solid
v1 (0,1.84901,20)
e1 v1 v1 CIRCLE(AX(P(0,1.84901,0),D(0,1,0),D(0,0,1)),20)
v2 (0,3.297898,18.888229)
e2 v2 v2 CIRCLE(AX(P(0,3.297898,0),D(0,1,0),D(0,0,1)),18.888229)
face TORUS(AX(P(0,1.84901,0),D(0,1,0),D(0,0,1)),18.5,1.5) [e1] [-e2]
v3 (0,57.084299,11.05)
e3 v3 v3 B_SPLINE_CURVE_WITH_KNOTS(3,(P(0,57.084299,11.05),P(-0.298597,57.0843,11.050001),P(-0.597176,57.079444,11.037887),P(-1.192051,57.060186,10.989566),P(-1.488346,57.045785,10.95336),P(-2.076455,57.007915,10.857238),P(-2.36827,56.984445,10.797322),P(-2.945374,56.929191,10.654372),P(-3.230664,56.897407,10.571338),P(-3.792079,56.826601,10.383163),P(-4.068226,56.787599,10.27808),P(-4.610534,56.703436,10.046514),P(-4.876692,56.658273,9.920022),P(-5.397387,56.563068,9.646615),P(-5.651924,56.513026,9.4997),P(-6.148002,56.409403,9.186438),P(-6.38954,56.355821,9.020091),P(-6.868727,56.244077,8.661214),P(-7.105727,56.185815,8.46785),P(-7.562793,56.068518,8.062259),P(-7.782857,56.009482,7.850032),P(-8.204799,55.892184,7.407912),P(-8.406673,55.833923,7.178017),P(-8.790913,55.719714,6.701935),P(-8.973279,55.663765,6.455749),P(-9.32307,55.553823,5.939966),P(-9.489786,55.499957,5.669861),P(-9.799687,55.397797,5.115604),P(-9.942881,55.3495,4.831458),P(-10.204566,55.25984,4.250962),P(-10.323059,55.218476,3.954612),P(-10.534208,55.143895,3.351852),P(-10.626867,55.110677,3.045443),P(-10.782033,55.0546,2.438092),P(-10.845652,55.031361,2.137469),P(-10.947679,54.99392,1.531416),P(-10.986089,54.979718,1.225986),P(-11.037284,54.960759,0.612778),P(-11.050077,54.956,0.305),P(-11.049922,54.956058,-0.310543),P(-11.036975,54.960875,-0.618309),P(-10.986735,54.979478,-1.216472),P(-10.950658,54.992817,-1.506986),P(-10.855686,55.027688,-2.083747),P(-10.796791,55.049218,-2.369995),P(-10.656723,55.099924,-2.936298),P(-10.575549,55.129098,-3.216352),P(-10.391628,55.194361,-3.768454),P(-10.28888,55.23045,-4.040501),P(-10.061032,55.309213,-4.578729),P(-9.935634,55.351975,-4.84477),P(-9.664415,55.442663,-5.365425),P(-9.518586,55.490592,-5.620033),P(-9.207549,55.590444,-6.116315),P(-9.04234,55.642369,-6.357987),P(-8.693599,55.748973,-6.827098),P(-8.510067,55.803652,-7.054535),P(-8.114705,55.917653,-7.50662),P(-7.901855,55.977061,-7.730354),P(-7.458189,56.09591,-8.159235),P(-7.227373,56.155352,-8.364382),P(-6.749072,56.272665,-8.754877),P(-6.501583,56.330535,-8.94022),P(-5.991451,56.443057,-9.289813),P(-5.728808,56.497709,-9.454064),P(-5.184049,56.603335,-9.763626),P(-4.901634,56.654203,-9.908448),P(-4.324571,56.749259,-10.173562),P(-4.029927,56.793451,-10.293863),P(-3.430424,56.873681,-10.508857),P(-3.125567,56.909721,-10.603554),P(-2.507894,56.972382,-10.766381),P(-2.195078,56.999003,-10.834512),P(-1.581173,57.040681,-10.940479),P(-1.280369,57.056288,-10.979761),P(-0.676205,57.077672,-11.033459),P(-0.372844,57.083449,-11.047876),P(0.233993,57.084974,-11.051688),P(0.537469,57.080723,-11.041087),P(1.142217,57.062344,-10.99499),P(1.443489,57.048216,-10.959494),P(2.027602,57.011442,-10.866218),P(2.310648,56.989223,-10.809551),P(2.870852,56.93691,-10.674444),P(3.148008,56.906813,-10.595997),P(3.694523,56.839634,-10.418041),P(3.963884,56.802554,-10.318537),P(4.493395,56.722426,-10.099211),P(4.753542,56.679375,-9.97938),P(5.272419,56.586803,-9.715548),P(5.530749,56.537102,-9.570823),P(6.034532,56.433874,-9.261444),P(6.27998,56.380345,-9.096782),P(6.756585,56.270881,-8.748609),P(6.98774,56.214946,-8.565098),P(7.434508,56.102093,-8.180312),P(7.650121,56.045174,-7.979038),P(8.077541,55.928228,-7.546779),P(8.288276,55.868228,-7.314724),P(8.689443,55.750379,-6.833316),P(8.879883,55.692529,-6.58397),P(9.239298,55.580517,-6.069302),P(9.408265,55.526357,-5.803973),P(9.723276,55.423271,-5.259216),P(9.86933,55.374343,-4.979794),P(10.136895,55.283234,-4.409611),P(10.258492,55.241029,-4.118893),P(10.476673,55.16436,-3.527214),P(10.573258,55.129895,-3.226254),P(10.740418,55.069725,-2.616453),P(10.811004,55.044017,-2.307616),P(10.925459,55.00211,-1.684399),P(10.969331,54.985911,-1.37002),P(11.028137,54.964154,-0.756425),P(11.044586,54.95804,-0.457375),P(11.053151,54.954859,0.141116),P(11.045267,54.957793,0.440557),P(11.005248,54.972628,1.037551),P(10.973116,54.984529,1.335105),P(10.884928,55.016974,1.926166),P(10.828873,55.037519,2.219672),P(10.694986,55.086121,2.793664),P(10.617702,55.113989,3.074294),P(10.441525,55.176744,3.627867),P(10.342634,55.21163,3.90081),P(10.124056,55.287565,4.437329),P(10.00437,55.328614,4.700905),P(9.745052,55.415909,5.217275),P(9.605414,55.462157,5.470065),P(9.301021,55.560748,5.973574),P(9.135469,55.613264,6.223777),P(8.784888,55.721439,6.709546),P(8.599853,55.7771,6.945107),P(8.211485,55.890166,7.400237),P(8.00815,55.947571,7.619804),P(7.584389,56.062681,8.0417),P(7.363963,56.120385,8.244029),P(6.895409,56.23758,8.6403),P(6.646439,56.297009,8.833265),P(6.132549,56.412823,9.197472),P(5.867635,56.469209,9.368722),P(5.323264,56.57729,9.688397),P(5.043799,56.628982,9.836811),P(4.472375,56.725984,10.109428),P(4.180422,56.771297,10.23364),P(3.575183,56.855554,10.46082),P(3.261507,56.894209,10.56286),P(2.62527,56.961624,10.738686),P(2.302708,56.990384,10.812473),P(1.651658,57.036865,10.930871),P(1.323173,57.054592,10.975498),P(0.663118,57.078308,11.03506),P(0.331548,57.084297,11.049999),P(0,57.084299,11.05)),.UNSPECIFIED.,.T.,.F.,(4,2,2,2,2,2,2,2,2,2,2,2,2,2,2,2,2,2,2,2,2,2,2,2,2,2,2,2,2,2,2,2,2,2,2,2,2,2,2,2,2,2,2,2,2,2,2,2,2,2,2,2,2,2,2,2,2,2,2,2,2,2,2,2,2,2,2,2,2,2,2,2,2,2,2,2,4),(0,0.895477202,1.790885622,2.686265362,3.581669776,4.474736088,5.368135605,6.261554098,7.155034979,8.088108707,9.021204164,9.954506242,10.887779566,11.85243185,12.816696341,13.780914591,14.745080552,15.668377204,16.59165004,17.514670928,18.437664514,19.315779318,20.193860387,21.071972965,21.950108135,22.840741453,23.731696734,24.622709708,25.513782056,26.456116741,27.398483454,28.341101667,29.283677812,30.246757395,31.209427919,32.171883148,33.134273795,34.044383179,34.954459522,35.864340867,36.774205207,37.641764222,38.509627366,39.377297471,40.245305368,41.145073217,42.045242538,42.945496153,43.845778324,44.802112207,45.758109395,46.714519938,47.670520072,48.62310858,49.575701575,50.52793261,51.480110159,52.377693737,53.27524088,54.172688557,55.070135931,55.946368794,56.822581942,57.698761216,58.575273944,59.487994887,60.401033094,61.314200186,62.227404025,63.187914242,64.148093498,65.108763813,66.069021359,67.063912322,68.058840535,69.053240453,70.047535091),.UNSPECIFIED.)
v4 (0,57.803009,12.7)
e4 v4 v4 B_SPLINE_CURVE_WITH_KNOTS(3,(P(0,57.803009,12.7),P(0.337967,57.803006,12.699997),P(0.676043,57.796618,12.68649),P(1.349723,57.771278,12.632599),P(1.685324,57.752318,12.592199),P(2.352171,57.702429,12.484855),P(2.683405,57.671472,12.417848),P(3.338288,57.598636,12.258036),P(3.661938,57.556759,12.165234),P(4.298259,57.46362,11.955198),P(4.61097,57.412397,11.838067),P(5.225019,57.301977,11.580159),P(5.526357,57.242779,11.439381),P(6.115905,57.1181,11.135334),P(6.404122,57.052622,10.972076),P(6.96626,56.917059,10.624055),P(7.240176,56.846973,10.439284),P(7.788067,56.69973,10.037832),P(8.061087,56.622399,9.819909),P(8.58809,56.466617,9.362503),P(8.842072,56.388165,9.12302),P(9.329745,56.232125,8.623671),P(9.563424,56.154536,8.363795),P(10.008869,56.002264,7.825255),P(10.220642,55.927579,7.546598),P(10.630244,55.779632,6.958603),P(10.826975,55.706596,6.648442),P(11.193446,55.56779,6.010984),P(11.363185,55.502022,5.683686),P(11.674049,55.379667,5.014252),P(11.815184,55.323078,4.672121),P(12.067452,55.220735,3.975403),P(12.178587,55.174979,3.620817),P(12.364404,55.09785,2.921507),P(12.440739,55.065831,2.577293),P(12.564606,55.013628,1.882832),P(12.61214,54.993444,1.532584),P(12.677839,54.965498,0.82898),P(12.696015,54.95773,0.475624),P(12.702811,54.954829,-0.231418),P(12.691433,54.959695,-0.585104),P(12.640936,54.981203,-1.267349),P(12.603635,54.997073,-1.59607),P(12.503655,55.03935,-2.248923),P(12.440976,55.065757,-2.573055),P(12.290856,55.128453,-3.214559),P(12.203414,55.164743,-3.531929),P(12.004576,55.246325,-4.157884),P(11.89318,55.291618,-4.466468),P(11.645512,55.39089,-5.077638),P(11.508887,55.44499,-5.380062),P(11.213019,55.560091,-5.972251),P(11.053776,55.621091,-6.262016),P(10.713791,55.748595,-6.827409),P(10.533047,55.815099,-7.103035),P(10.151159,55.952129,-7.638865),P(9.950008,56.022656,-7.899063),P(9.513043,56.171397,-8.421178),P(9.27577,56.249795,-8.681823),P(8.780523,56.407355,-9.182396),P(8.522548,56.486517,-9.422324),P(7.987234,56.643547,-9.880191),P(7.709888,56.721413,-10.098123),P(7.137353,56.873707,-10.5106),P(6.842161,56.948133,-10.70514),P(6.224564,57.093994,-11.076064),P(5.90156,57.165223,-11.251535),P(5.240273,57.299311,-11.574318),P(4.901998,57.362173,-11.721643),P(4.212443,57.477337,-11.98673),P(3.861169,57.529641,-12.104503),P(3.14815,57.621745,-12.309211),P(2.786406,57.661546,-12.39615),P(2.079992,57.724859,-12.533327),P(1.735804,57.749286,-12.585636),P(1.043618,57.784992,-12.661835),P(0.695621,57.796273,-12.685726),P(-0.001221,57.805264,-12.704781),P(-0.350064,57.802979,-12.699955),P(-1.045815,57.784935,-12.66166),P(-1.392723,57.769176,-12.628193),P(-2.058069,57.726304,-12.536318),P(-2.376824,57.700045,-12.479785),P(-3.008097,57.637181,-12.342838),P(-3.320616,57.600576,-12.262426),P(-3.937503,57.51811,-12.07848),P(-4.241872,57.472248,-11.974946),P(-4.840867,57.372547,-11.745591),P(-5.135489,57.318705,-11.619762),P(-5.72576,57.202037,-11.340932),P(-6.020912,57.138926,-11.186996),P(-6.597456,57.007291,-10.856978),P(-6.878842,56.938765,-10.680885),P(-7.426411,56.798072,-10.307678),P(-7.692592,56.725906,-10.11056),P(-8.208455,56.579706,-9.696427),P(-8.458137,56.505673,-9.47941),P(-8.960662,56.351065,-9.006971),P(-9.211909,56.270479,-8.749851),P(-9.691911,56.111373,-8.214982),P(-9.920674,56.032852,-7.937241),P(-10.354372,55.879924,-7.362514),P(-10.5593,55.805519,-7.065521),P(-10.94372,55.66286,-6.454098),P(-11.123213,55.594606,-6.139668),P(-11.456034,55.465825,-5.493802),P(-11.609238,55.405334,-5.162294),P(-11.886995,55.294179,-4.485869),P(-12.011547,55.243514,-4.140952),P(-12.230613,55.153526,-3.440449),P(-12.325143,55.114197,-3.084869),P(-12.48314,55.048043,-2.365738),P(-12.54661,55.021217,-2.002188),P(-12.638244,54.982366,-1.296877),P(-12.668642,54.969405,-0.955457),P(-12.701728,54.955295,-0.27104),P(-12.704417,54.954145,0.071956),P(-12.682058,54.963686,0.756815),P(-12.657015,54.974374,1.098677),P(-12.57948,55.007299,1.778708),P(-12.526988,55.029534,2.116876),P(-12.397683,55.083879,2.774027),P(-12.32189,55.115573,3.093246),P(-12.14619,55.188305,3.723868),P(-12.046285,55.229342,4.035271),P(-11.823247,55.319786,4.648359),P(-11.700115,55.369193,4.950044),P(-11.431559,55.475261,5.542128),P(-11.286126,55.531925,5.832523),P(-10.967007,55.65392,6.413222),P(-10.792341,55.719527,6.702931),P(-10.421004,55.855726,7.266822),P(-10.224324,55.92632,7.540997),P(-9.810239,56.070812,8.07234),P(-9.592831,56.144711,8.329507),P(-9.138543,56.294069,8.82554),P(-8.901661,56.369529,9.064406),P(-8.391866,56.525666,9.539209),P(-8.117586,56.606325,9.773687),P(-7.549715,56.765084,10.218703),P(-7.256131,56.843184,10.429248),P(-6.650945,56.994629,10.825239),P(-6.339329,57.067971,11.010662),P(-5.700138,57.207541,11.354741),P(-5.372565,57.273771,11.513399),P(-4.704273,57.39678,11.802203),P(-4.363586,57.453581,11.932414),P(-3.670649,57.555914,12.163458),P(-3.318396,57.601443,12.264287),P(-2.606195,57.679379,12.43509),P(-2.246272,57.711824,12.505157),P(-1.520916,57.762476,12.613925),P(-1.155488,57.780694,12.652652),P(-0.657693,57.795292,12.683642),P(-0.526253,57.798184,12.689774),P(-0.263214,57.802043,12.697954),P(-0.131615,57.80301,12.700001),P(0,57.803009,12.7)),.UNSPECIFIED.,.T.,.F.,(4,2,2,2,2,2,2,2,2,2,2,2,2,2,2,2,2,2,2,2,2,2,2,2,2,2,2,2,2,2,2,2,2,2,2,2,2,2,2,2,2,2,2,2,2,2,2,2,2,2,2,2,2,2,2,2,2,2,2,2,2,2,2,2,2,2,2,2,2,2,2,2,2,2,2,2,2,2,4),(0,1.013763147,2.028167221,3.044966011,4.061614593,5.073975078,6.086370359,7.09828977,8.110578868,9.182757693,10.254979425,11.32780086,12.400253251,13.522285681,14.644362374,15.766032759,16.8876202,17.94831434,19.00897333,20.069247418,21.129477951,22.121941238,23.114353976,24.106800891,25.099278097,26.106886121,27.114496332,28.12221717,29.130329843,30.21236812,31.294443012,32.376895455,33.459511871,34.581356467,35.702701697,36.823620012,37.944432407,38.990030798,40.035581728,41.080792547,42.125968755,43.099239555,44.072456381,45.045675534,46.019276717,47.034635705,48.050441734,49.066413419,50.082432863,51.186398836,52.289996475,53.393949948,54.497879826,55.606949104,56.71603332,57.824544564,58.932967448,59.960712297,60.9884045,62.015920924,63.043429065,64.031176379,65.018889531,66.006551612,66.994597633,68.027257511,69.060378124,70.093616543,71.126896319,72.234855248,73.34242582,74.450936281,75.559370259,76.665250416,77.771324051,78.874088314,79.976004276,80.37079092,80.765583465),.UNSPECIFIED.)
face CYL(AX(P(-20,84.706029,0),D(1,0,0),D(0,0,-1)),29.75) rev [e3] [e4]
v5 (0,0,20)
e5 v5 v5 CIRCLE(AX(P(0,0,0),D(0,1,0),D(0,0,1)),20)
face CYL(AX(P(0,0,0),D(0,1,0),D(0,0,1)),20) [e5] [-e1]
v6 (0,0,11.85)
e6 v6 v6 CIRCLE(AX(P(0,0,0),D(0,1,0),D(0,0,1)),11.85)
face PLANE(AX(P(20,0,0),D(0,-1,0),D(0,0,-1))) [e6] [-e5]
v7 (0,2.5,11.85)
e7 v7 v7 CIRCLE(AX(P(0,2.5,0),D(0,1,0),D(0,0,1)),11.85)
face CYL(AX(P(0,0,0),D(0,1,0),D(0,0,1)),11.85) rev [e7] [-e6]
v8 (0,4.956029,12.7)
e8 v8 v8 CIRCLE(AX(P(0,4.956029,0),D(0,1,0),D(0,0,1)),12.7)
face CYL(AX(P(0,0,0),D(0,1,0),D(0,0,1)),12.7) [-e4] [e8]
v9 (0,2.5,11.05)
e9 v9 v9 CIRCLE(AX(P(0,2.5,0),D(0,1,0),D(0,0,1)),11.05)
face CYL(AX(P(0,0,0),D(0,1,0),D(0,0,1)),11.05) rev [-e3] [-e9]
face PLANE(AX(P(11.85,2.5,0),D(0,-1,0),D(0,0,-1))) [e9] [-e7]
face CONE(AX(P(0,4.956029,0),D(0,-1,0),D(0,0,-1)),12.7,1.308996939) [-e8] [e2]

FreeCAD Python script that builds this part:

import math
import FreeCAD as App
import Part
import Sketcher
from FreeCAD import Vector
Q = App.Units.Quantity

doc = App.newDocument("Part")
body = doc.addObject("PartDesign::Body", "Body")

# Sketch on XY plane
sketch1 = body.newObject("Sketcher::SketchObject", "Sketch")
sketch1.AttachmentSupport = (doc.getObject("XY_Plane"), [""])
sketch1.MapMode = "FlatFace"
sketch1.addGeometry([
    Part.LineSegment(Vector(12.7, 5, 0), Vector(18.9, 3.3, 0)),  # 0
    Part.ArcOfCircle(Part.Circle(Vector(18.5, 1.8, 0), Vector(0, 0, 1), 1.5), math.radians(0), math.radians(75)),  # 1
    Part.LineSegment(Vector(20, 1.8, 0), Vector(20, 0, 0)),  # 2
    Part.LineSegment(Vector(20, 0, 0), Vector(11.8, 0, 0)),  # 3
    Part.LineSegment(Vector(11.8, 0, 0), Vector(11.8, 2.5, 0)),  # 4
    Part.LineSegment(Vector(11.8, 2.5, 0), Vector(11.1, 2.5, 0)),  # 5
    Part.LineSegment(Vector(11.1, 2.5, 0), Vector(11.1, 70, 0)),  # 6
    Part.LineSegment(Vector(11.1, 70, 0), Vector(12.7, 70, 0)),  # 7
    Part.LineSegment(Vector(12.7, 70, 0), Vector(12.7, 5, 0)),  # 8
], False)
sketch1.addConstraint([
    Sketcher.Constraint("Tangent", 0, 2, 1, 2),
    Sketcher.Constraint("Tangent", 1, 1, 2, 1),
    Sketcher.Constraint("Coincident", 2, 2, 3, 1),
    Sketcher.Constraint("Coincident", 3, 2, 4, 1),
    Sketcher.Constraint("Coincident", 4, 2, 5, 1),
    Sketcher.Constraint("Coincident", 5, 2, 6, 1),
    Sketcher.Constraint("Coincident", 6, 2, 7, 1),
    Sketcher.Constraint("Coincident", 7, 2, 8, 1),
    Sketcher.Constraint("Coincident", 8, 2, 0, 1),
    Sketcher.Constraint("Vertical", 2),
    Sketcher.Constraint("Horizontal", 3),
    Sketcher.Constraint("Vertical", 4),
    Sketcher.Constraint("Horizontal", 5),
    Sketcher.Constraint("Vertical", 6),
    Sketcher.Constraint("Horizontal", 7),
    Sketcher.Constraint("Vertical", 8),
    Sketcher.Constraint("PointOnObject", 2, 2, -1),
    Sketcher.Constraint("Radius", 1, 1.5),
    Sketcher.Constraint("Angle", 0, Q("-15 deg")),
    Sketcher.Constraint("DistanceX", 5, 2, 5, 1, 0.8),
    Sketcher.Constraint("DistanceY", 4, 1, 4, 2, 2.5),
    Sketcher.Constraint("DistanceY", 6, 1, 6, 2, 67.5),
    Sketcher.Constraint("DistanceX", -1, 1, 1, 1, 20.0),
    Sketcher.Constraint("DistanceX", 3, 2, 3, 1, 8.15),
    Sketcher.Constraint("DistanceX", 7, 1, 7, 2, 1.65),
    Sketcher.Constraint("DistanceY", 2, 2, 2, 1, 1.84901),
])
revolution = body.newObject("PartDesign::Revolution", "Revolution")
revolution.Profile = sketch1
revolution.ReferenceAxis = (sketch1, ["V_Axis"])
revolution.Angle = 360

# Sketch on YZ plane
sketch2 = body.newObject("Sketcher::SketchObject", "Sketch001")
sketch2.AttachmentSupport = (doc.getObject("YZ_Plane"), [""])
sketch2.MapMode = "FlatFace"
sketch2.addGeometry(Part.Circle(Vector(85, 0, 0), Vector(0, 0, 1), 30), False)
sketch2.addConstraint([
    Sketcher.Constraint("PointOnObject", 0, 3, -1),
    Sketcher.Constraint("Diameter", 0, 59.5),
    Sketcher.Constraint("DistanceX", -1, 1, 0, 3, 84.706029),
])
pocket1 = body.newObject("PartDesign::Pocket", "Pocket")
pocket1.Profile = sketch2
pocket1.Type = "ThroughAll"
pocket1.Midplane = True

doc.recompute()
